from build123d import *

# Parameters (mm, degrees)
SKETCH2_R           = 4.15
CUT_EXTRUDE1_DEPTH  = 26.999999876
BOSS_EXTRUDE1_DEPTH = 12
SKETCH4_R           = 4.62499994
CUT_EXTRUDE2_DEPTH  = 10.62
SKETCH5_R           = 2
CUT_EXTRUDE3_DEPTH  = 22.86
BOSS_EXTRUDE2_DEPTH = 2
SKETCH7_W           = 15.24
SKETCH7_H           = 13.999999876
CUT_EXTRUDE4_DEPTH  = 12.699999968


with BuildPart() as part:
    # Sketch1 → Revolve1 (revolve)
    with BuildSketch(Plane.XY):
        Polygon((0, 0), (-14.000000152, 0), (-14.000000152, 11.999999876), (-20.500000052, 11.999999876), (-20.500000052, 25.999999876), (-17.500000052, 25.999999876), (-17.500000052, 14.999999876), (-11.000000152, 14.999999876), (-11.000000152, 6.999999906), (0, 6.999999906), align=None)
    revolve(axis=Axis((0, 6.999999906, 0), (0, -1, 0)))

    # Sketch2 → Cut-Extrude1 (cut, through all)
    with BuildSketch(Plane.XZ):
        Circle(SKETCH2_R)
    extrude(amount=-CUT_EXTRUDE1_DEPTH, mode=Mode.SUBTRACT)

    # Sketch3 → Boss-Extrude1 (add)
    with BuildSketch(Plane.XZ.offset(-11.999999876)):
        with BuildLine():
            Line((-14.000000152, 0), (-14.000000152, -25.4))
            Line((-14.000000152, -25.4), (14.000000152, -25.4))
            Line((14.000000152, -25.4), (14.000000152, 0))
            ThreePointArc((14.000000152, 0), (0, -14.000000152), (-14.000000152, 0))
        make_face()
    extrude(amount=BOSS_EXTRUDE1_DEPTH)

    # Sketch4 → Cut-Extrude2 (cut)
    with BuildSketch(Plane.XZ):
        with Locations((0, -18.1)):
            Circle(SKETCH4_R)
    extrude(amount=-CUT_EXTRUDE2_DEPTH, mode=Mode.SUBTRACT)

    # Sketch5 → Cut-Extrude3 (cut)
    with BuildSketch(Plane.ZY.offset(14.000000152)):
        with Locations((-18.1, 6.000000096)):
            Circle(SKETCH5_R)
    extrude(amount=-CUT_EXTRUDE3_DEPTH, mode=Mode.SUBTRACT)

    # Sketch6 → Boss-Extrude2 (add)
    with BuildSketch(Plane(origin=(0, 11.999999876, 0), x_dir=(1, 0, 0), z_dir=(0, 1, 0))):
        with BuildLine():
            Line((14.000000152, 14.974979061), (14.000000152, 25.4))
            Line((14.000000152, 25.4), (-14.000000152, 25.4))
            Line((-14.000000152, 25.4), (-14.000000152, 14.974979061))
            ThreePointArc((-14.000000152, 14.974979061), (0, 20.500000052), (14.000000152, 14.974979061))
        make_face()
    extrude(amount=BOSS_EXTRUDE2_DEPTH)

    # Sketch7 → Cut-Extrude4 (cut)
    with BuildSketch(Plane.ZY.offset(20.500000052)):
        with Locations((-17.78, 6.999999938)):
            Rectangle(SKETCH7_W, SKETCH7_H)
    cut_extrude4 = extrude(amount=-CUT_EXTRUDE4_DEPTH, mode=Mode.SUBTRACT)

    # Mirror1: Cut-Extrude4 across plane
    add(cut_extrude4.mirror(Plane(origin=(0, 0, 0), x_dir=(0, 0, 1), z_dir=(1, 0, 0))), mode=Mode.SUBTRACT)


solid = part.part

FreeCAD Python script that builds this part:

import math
import FreeCAD as App
import Part
import Sketcher


def add_polygon(sketch, points):
    """Adds a closed chain of lines whose ends are joined by coincident constraints."""
    first, n = sketch.GeometryCount, len(points)
    for a, b in zip(points, points[1:] + points[:1]):
        sketch.addGeometry(Part.LineSegment(App.Vector(*a, 0), App.Vector(*b, 0)), False)
    for i in range(n):
        sketch.addConstraint(Sketcher.Constraint("Coincident", first + i, 2, first + (i + 1) % n, 1))

doc = App.newDocument("Part")
body = doc.addObject("PartDesign::Body", "Body")

# Sketch on XY plane
sketch1 = body.newObject("Sketcher::SketchObject", "Sketch")
sketch1.AttachmentSupport = (doc.getObject("XY_Plane"), [""])
sketch1.MapMode = "FlatFace"
add_polygon(sketch1, [(-14, 0), (0, 0), (0, 7), (-11, 7), (-11, 15), (-17.5, 15), (-17.5, 26), (-20.5, 26), (-20.5, 12), (-14, 12)])  # lines 0-9
sketch1.addConstraint(Sketcher.Constraint("Horizontal", 0))
sketch1.addConstraint(Sketcher.Constraint("Vertical", 1))
sketch1.addConstraint(Sketcher.Constraint("Horizontal", 2))
sketch1.addConstraint(Sketcher.Constraint("Vertical", 3))
sketch1.addConstraint(Sketcher.Constraint("Horizontal", 4))
sketch1.addConstraint(Sketcher.Constraint("Vertical", 5))
sketch1.addConstraint(Sketcher.Constraint("Horizontal", 6))
sketch1.addConstraint(Sketcher.Constraint("Vertical", 7))
sketch1.addConstraint(Sketcher.Constraint("Horizontal", 8))
sketch1.addConstraint(Sketcher.Constraint("Vertical", 9))
sketch1.addConstraint(Sketcher.Constraint("Coincident", 0, 2, -1, 1))
sketch1.addConstraint(Sketcher.Constraint("Equal", 4, 8))
sketch1.addConstraint(Sketcher.Constraint("Equal", 2, 5))
sketch1.addConstraint(Sketcher.Constraint("Equal", 0, 7))
sketch1.addConstraint(Sketcher.Constraint("DistanceX", 0, 1, 0, 2, 14.0))
sketch1.addConstraint(Sketcher.Constraint("DistanceX", 2, 2, 2, 1, 11.0))
sketch1.addConstraint(Sketcher.Constraint("DistanceY", 1, 1, 1, 2, 7.0))
sketch1.addConstraint(Sketcher.Constraint("DistanceY", 3, 1, 3, 2, 8.0))
sketch1.addConstraint(Sketcher.Constraint("DistanceX", 4, 2, 4, 1, 6.5))
revolution = body.newObject("PartDesign::Revolution", "Revolution")
revolution.Profile = sketch1
revolution.ReferenceAxis = (sketch1, ["V_Axis"])
revolution.Angle = 360

# Sketch on XZ plane
sketch2 = body.newObject("Sketcher::SketchObject", "Sketch001")
sketch2.AttachmentSupport = (doc.getObject("XZ_Plane"), [""])
sketch2.MapMode = "FlatFace"
sketch2.addGeometry(Part.Circle(App.Vector(0, 0, 0), App.Vector(0, 0, 1), 4.2), False)
sketch2.addConstraint(Sketcher.Constraint("Coincident", 0, 3, -1, 1))
sketch2.addConstraint(Sketcher.Constraint("Diameter", 0, 8.3))
pocket1 = body.newObject("PartDesign::Pocket", "Pocket")
pocket1.Profile = sketch2
pocket1.Type = "ThroughAll"

# Sketch on XZ plane
sketch3 = body.newObject("Sketcher::SketchObject", "Sketch002")
sketch3.AttachmentSupport = (doc.getObject("XZ_Plane"), [""])
sketch3.MapMode = "FlatFace"
sketch3.AttachmentOffset = App.Placement(App.Vector(0, 0, -12), App.Rotation())
sketch3.addGeometry(Part.LineSegment(App.Vector(-14, 0, 0), App.Vector(-14, -25, 0)), False)
sketch3.addGeometry(Part.LineSegment(App.Vector(-14, -25, 0), App.Vector(14, -25, 0)), False)
sketch3.addGeometry(Part.LineSegment(App.Vector(14, -25, 0), App.Vector(14, 0, 0)), False)
sketch3.addGeometry(Part.ArcOfCircle(Part.Circle(App.Vector(0, 0, 0), App.Vector(0, 0, 1), 14), math.radians(180), math.radians(360)), False)
sketch3.addConstraint(Sketcher.Constraint("Coincident", 0, 2, 1, 1))
sketch3.addConstraint(Sketcher.Constraint("Coincident", 1, 2, 2, 1))
sketch3.addConstraint(Sketcher.Constraint("Tangent", 2, 2, 3, 2))
sketch3.addConstraint(Sketcher.Constraint("Tangent", 3, 1, 0, 1))
sketch3.addConstraint(Sketcher.Constraint("Vertical", 0))
sketch3.addConstraint(Sketcher.Constraint("Horizontal", 1))
sketch3.addConstraint(Sketcher.Constraint("Vertical", 2))
sketch3.addConstraint(Sketcher.Constraint("Coincident", 3, 3, -1, 1))
sketch3.addConstraint(Sketcher.Constraint("Radius", 3, 14.0))
sketch3.addConstraint(Sketcher.Constraint("DistanceY", 0, 2, 0, 1, 25.4))
pad1 = body.newObject("PartDesign::Pad", "Pad")
pad1.Profile = sketch3
pad1.Length = 12

# Sketch on XZ plane
sketch4 = body.newObject("Sketcher::SketchObject", "Sketch003")
sketch4.AttachmentSupport = (doc.getObject("XZ_Plane"), [""])
sketch4.MapMode = "FlatFace"
sketch4.addGeometry(Part.Circle(App.Vector(0, -18.1, 0), App.Vector(0, 0, 1), 4.6), False)
sketch4.addConstraint(Sketcher.Constraint("PointOnObject", 0, 3, -2))
sketch4.addConstraint(Sketcher.Constraint("Diameter", 0, 9.25))
sketch4.addConstraint(Sketcher.Constraint("DistanceY", 0, 3, -1, 1, 18.1))
pocket2 = body.newObject("PartDesign::Pocket", "Pocket001")
pocket2.Profile = sketch4
pocket2.Length = 10.62

# Sketch on YZ plane
sketch5 = body.newObject("Sketcher::SketchObject", "Sketch004")
sketch5.AttachmentSupport = (doc.getObject("YZ_Plane"), [""])
sketch5.MapMode = "FlatFace"
sketch5.AttachmentOffset = App.Placement(App.Vector(0, 0, -14), App.Rotation())
sketch5.addGeometry(Part.Circle(App.Vector(6, -18.1, 0), App.Vector(0, 0, 1), 2), False)
sketch5.addConstraint(Sketcher.Constraint("Diameter", 0, 4.0))
sketch5.addConstraint(Sketcher.Constraint("DistanceX", -1, 1, 0, 3, 6.0))
sketch5.addConstraint(Sketcher.Constraint("DistanceY", 0, 3, -1, 1, 18.1))
pocket3 = body.newObject("PartDesign::Pocket", "Pocket002")
pocket3.Profile = sketch5
pocket3.Length = 22.86
pocket3.Reversed = True

# Sketch on XZ plane
sketch6 = body.newObject("Sketcher::SketchObject", "Sketch005")
sketch6.AttachmentSupport = (doc.getObject("XZ_Plane"), [""])
sketch6.MapMode = "FlatFace"
sketch6.AttachmentOffset = App.Placement(App.Vector(0, 0, -12), App.Rotation())
sketch6.addGeometry(Part.LineSegment(App.Vector(14, -15, 0), App.Vector(14, -25, 0)), False)
sketch6.addGeometry(Part.LineSegment(App.Vector(14, -25, 0), App.Vector(-14, -25, 0)), False)
sketch6.addGeometry(Part.LineSegment(App.Vector(-14, -25, 0), App.Vector(-14, -15, 0)), False)
sketch6.addGeometry(Part.ArcOfCircle(Part.Circle(App.Vector(0, 0, 0), App.Vector(0, 0, 1), 21), math.radians(-133), math.radians(-47)), False)
sketch6.addConstraint(Sketcher.Constraint("Coincident", 0, 2, 1, 1))
sketch6.addConstraint(Sketcher.Constraint("Coincident", 1, 2, 2, 1))
sketch6.addConstraint(Sketcher.Constraint("Coincident", 2, 2, 3, 1))
sketch6.addConstraint(Sketcher.Constraint("Coincident", 3, 2, 0, 1))
sketch6.addConstraint(Sketcher.Constraint("Vertical", 0))
sketch6.addConstraint(Sketcher.Constraint("Horizontal", 1))
sketch6.addConstraint(Sketcher.Constraint("Vertical", 2))
sketch6.addConstraint(Sketcher.Constraint("Coincident", 3, 3, -1, 1))
sketch6.addConstraint(Sketcher.Constraint("Horizontal", 2, 2, 3, 2))
sketch6.addConstraint(Sketcher.Constraint("Radius", 3, 20.5))
sketch6.addConstraint(Sketcher.Constraint("DistanceX", 1, 2, 1, 1, 28.0))
sketch6.addConstraint(Sketcher.Constraint("DistanceY", 0, 2, -1, 1, 25.4))
pad2 = body.newObject("PartDesign::Pad", "Pad001")
pad2.Profile = sketch6
pad2.Length = 2
pad2.Reversed = True

# Sketch on YZ plane
sketch7 = body.newObject("Sketcher::SketchObject", "Sketch006")
sketch7.AttachmentSupport = (doc.getObject("YZ_Plane"), [""])
sketch7.MapMode = "FlatFace"
sketch7.AttachmentOffset = App.Placement(App.Vector(0, 0, -20.5), App.Rotation())
add_polygon(sketch7, [(14, -25), (0, -25), (0, -10), (14, -10)])  # lines 0-3
sketch7.addConstraint(Sketcher.Constraint("Horizontal", 0))
sketch7.addConstraint(Sketcher.Constraint("Vertical", 1))
sketch7.addConstraint(Sketcher.Constraint("Horizontal", 2))
sketch7.addConstraint(Sketcher.Constraint("Vertical", 3))
sketch7.addConstraint(Sketcher.Constraint("PointOnObject", 0, 2, -2))
sketch7.addConstraint(Sketcher.Constraint("DistanceX", 0, 2, 0, 1, 14.0))
sketch7.addConstraint(Sketcher.Constraint("DistanceY", 1, 1, 1, 2, 15.24))
sketch7.addConstraint(Sketcher.Constraint("DistanceY", 0, 2, -1, 1, 25.4))
pocket4 = body.newObject("PartDesign::Pocket", "Pocket003")
pocket4.Profile = sketch7
pocket4.Length = 12.7
pocket4.Reversed = True
doc.recompute()

mirrored = body.newObject("PartDesign::Mirrored", "Mirrored")
mirrored.Originals = [pocket4]
mirrored.MirrorPlane = (doc.getObject("YZ_Plane"), [""])
body.Tip = mirrored

doc.recompute()
